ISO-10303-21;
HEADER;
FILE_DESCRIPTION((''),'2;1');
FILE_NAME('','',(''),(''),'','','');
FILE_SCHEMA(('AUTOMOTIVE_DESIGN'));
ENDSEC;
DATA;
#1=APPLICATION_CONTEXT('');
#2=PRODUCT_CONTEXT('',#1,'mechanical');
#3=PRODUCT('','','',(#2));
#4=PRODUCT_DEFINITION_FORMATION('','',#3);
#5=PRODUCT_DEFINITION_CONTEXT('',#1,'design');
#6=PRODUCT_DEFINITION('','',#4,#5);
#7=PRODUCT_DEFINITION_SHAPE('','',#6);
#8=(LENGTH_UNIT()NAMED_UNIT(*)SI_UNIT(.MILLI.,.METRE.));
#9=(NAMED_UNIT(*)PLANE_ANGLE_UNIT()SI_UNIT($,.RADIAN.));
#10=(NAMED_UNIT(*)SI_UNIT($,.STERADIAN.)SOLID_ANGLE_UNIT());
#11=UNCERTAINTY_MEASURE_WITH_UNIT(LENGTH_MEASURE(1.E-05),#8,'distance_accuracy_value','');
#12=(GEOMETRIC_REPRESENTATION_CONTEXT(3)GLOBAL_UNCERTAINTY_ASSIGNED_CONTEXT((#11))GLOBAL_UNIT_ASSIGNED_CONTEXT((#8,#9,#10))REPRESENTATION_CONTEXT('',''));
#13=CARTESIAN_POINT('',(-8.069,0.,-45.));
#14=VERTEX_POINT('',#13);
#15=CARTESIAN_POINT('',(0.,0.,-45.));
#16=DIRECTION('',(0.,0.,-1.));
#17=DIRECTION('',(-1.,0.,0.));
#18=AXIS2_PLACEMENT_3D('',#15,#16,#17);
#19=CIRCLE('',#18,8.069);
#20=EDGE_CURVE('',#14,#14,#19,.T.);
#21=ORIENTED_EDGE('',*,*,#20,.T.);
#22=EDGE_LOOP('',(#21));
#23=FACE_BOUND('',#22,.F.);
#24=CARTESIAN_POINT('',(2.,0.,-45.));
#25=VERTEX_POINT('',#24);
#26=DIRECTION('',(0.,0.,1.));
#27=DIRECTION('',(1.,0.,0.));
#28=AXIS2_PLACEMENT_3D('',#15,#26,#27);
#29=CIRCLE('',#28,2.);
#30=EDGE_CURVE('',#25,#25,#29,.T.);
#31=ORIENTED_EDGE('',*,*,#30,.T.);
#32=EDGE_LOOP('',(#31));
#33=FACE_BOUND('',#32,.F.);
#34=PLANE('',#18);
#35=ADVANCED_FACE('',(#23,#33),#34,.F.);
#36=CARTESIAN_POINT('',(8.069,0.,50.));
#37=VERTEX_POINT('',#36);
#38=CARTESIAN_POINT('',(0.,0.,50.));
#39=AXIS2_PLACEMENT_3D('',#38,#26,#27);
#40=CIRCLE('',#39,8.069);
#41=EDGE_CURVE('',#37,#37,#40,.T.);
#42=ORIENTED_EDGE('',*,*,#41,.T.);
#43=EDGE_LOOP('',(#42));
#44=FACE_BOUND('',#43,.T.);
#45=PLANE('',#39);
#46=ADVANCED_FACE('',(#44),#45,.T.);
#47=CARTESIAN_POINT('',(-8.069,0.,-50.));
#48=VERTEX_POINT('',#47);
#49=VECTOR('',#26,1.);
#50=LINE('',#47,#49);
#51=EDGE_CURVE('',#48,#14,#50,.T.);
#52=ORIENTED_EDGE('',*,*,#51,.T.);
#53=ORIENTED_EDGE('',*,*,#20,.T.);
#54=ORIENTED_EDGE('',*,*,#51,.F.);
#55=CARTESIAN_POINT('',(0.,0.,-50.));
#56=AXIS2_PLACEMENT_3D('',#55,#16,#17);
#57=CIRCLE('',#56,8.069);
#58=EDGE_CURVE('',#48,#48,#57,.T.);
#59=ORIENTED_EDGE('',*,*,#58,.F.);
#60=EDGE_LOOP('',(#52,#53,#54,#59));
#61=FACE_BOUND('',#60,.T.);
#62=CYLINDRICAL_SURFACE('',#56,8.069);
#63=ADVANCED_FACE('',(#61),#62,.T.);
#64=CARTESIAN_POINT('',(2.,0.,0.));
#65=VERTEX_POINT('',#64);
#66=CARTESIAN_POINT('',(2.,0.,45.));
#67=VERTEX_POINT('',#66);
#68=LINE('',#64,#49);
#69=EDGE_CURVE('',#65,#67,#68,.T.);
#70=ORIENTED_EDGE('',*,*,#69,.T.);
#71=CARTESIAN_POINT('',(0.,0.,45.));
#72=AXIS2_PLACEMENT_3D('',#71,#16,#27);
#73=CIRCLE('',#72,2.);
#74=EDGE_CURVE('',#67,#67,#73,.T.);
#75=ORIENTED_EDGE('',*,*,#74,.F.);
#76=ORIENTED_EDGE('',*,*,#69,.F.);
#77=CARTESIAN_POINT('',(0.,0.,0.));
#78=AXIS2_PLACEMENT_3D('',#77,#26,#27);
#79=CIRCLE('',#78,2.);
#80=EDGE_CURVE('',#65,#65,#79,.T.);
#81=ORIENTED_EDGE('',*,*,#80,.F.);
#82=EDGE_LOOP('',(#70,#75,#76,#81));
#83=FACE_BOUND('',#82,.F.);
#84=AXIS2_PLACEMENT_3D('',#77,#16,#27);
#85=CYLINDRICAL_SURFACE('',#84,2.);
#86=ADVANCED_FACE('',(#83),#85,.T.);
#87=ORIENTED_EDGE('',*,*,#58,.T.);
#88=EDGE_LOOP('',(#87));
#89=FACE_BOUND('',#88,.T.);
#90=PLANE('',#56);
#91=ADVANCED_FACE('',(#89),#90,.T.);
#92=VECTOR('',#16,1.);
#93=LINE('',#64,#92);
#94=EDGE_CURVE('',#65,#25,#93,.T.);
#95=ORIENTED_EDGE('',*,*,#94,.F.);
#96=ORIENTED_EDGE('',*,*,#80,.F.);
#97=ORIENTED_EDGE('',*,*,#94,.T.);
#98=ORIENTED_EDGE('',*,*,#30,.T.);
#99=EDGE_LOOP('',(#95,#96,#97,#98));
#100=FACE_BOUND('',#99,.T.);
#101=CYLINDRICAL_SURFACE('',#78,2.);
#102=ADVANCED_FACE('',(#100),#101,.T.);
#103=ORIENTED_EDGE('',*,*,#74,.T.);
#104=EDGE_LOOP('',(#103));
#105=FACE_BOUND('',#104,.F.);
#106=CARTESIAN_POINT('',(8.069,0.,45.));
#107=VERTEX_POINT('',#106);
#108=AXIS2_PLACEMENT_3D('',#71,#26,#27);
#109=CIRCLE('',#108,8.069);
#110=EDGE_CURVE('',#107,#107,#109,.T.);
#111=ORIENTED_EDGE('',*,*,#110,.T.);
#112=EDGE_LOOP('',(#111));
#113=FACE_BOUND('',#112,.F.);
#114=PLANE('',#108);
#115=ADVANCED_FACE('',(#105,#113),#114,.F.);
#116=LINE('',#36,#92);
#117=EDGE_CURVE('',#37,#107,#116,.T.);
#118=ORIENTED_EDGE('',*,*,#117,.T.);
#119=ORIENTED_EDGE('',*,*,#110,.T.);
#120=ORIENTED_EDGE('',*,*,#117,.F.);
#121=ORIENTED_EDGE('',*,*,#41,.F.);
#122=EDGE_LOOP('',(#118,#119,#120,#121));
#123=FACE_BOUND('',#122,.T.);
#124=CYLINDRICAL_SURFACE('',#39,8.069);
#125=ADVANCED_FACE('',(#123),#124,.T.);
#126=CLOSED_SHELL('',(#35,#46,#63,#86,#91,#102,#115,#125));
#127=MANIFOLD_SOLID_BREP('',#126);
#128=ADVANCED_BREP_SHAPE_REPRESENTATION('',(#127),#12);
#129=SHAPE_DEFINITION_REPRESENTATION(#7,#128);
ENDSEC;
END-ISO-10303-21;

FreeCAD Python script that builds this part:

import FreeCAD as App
import Part
import Sketcher

V = App.Vector

doc = App.newDocument("Part")
body = doc.addObject("PartDesign::Body", "Body")

# Sketch on XY plane
sketch1 = doc.addObject("Sketcher::SketchObject", "Sketch")
body.addObject(sketch1)
sketch1.AttachmentSupport = (doc.XY_Plane, [""])
sketch1.MapMode = "FlatFace"
sketch1.addGeometry(Part.Circle(V(0, 0, 0), V(0, 0, 1), 2), False)
sketch1.addConstraint(Sketcher.Constraint("Coincident", 0, 3, -1, 1))
sketch1.addConstraint(Sketcher.Constraint("Diameter", 0, 4.0))
pad1 = doc.addObject("PartDesign::Pad", "Pad")
body.addObject(pad1)
pad1.Profile = sketch1
pad1.Length = 100
pad1.Midplane = True

# Sketch on XY plane
sketch2 = doc.addObject("Sketcher::SketchObject", "Sketch001")
body.addObject(sketch2)
sketch2.AttachmentSupport = (doc.XY_Plane, [""])
sketch2.MapMode = "FlatFace"
sketch2.AttachmentOffset = App.Placement(V(0, 0, 50), App.Rotation())
sketch2.addGeometry(Part.Circle(V(0, 0, 0), V(0, 0, 1), 8), False)
sketch2.addConstraint(Sketcher.Constraint("Coincident", 0, 3, -1, 1))
sketch2.addConstraint(Sketcher.Constraint("Diameter", 0, 16.138))
pad2 = doc.addObject("PartDesign::Pad", "Pad001")
body.addObject(pad2)
pad2.Profile = sketch2
pad2.Length = 5
pad2.Reversed = True

# Sketch on XY plane
sketch3 = doc.addObject("Sketcher::SketchObject", "Sketch002")
body.addObject(sketch3)
sketch3.AttachmentSupport = (doc.XY_Plane, [""])
sketch3.MapMode = "FlatFace"
sketch3.AttachmentOffset = App.Placement(V(0, 0, -50), App.Rotation())
sketch3.addGeometry(Part.Circle(V(0, 0, 0), V(0, 0, 1), 8), False)
sketch3.addConstraint(Sketcher.Constraint("Coincident", 0, 3, -1, 1))
sketch3.addConstraint(Sketcher.Constraint("Diameter", 0, 16.138))
pad3 = doc.addObject("PartDesign::Pad", "Pad002")
body.addObject(pad3)
pad3.Profile = sketch3
pad3.Length = 5

doc.recompute()
